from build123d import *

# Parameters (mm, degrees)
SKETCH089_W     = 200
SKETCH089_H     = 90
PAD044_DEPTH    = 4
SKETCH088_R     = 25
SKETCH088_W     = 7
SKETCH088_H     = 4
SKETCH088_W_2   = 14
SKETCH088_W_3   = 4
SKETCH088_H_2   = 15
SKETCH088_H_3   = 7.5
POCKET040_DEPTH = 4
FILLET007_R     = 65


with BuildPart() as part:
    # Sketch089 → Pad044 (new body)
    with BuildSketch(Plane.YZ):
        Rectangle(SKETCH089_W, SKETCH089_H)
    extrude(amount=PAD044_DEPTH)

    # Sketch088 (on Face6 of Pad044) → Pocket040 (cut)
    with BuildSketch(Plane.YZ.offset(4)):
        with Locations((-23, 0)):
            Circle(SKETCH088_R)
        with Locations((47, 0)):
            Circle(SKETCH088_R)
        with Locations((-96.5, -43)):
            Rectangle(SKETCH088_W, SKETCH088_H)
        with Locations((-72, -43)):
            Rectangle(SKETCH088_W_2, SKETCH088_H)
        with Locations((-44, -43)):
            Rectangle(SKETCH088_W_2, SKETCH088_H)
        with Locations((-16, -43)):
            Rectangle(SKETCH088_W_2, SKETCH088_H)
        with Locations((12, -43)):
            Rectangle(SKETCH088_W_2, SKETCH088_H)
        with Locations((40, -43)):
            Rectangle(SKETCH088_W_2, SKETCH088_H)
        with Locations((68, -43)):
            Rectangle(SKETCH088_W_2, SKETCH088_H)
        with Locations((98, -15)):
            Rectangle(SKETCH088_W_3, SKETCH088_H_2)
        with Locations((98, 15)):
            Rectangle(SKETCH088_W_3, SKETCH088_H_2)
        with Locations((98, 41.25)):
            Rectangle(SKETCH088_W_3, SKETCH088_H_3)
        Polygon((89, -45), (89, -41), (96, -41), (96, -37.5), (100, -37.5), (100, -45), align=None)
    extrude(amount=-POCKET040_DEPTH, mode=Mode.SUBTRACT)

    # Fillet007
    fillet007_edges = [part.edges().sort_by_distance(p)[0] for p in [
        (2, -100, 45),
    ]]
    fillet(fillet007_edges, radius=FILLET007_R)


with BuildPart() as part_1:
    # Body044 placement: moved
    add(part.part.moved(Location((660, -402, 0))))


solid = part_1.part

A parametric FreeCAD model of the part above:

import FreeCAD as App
import Part
import Sketcher


def edges_at(feature, points):
    """Names of the edges that pass closest to the given points."""
    edges = feature.Shape.Edges
    near = lambda p: min(range(len(edges)), key=lambda i: edges[i].distToShape(Part.Vertex(*p))[0])
    return sorted({f"Edge{near(p) + 1}" for p in points})

doc = App.newDocument("Part")
params = doc.addObject("Spreadsheet::Sheet", "Params")
for row, (alias, value) in enumerate([
    ("sketch1_width", "200 mm"),
    ("sketch1_height", "90 mm"),
    ("pad1_length", "4 mm"),
    ("sketch2_diameter", "50 mm"),
    ("sketch2_width", "7 mm"),
    ("sketch2_width2", "14 mm"),
    ("sketch2_width3", "4 mm"),
    ("sketch2_height", "15 mm"),
    ("pocket1_length", "4 mm"),
    ("fillet_radius", "65 mm"),
], start=1):
    params.set(f"A{row}", alias)
    params.set(f"B{row}", "=" + value)
    params.setAlias(f"B{row}", alias)

body = doc.addObject("PartDesign::Body", "Body")

sketch1 = doc.addObject("Sketcher::SketchObject", "Sketch")
body.addObject(sketch1)
sketch1.AttachmentSupport = (doc.YZ_Plane, [""])
sketch1.MapMode = "FlatFace"
sketch1.addGeometry(Part.LineSegment(App.Vector(-100, 45, 0), App.Vector(-100, -45, 0)), False)
sketch1.addGeometry(Part.LineSegment(App.Vector(-100, -45, 0), App.Vector(100, -45, 0)), False)
sketch1.addGeometry(Part.LineSegment(App.Vector(100, -45, 0), App.Vector(100, 45, 0)), False)
sketch1.addGeometry(Part.LineSegment(App.Vector(100, 45, 0), App.Vector(-100, 45, 0)), False)
sketch1.addConstraint(Sketcher.Constraint("Coincident", 0, 2, 1, 1))
sketch1.addConstraint(Sketcher.Constraint("Coincident", 1, 2, 2, 1))
sketch1.addConstraint(Sketcher.Constraint("Coincident", 2, 2, 3, 1))
sketch1.addConstraint(Sketcher.Constraint("Coincident", 3, 2, 0, 1))
sketch1.addConstraint(Sketcher.Constraint("Vertical", 0))
sketch1.addConstraint(Sketcher.Constraint("Horizontal", 1))
sketch1.addConstraint(Sketcher.Constraint("Vertical", 2))
sketch1.addConstraint(Sketcher.Constraint("Horizontal", 3))
sketch1.addConstraint(Sketcher.Constraint("Symmetric", 0, 2, 2, 2, -1, 1))
sketch1.addConstraint(Sketcher.Constraint("DistanceX", 1, 1, 1, 2, 200.0))
sketch1.addConstraint(Sketcher.Constraint("DistanceY", 0, 2, 0, 1, 90.0))
sketch1.setExpression("Constraints[9]", "Params.sketch1_width")
sketch1.setExpression("Constraints[10]", "Params.sketch1_height")
pad1 = doc.addObject("PartDesign::Pad", "Pad")
body.addObject(pad1)
pad1.Profile = sketch1
pad1.setExpression("Length", "Params.pad1_length")

sketch2 = doc.addObject("Sketcher::SketchObject", "Sketch001")
body.addObject(sketch2)
sketch2.AttachmentSupport = (doc.YZ_Plane, [""])
sketch2.MapMode = "FlatFace"
sketch2.AttachmentOffset = App.Placement(App.Vector(0, 0, 4), App.Rotation())
sketch2.addGeometry(Part.Circle(App.Vector(-23, 0, 0), App.Vector(0, 0, 1), 25), False)
sketch2.addGeometry(Part.Circle(App.Vector(47, 0, 0), App.Vector(0, 0, 1), 25), False)
sketch2.addGeometry(Part.LineSegment(App.Vector(-100, -41, 0), App.Vector(-100, -45, 0)), False)
sketch2.addGeometry(Part.LineSegment(App.Vector(-100, -45, 0), App.Vector(-93, -45, 0)), False)
sketch2.addGeometry(Part.LineSegment(App.Vector(-93, -45, 0), App.Vector(-93, -41, 0)), False)
sketch2.addGeometry(Part.LineSegment(App.Vector(-93, -41, 0), App.Vector(-100, -41, 0)), False)
sketch2.addGeometry(Part.LineSegment(App.Vector(-79, -41, 0), App.Vector(-79, -45, 0)), False)
sketch2.addGeometry(Part.LineSegment(App.Vector(-79, -45, 0), App.Vector(-65, -45, 0)), False)
sketch2.addGeometry(Part.LineSegment(App.Vector(-65, -45, 0), App.Vector(-65, -41, 0)), False)
sketch2.addGeometry(Part.LineSegment(App.Vector(-65, -41, 0), App.Vector(-79, -41, 0)), False)
sketch2.addGeometry(Part.LineSegment(App.Vector(-51, -41, 0), App.Vector(-51, -45, 0)), False)
sketch2.addGeometry(Part.LineSegment(App.Vector(-51, -45, 0), App.Vector(-37, -45, 0)), False)
sketch2.addGeometry(Part.LineSegment(App.Vector(-37, -45, 0), App.Vector(-37, -41, 0)), False)
sketch2.addGeometry(Part.LineSegment(App.Vector(-37, -41, 0), App.Vector(-51, -41, 0)), False)
sketch2.addGeometry(Part.LineSegment(App.Vector(-23, -41, 0), App.Vector(-23, -45, 0)), False)
sketch2.addGeometry(Part.LineSegment(App.Vector(-23, -45, 0), App.Vector(-9, -45, 0)), False)
sketch2.addGeometry(Part.LineSegment(App.Vector(-9, -45, 0), App.Vector(-9, -41, 0)), False)
sketch2.addGeometry(Part.LineSegment(App.Vector(-9, -41, 0), App.Vector(-23, -41, 0)), False)
sketch2.addGeometry(Part.LineSegment(App.Vector(5, -41, 0), App.Vector(5, -45, 0)), False)
sketch2.addGeometry(Part.LineSegment(App.Vector(5, -45, 0), App.Vector(19, -45, 0)), False)
sketch2.addGeometry(Part.LineSegment(App.Vector(19, -45, 0), App.Vector(19, -41, 0)), False)
sketch2.addGeometry(Part.LineSegment(App.Vector(19, -41, 0), App.Vector(5, -41, 0)), False)
sketch2.addGeometry(Part.LineSegment(App.Vector(33, -41, 0), App.Vector(33, -45, 0)), False)
sketch2.addGeometry(Part.LineSegment(App.Vector(33, -45, 0), App.Vector(47, -45, 0)), False)
sketch2.addGeometry(Part.LineSegment(App.Vector(47, -45, 0), App.Vector(47, -41, 0)), False)
sketch2.addGeometry(Part.LineSegment(App.Vector(47, -41, 0), App.Vector(33, -41, 0)), False)
sketch2.addGeometry(Part.LineSegment(App.Vector(61, -41, 0), App.Vector(61, -45, 0)), False)
sketch2.addGeometry(Part.LineSegment(App.Vector(61, -45, 0), App.Vector(75, -45, 0)), False)
sketch2.addGeometry(Part.LineSegment(App.Vector(75, -45, 0), App.Vector(75, -41, 0)), False)
sketch2.addGeometry(Part.LineSegment(App.Vector(75, -41, 0), App.Vector(61, -41, 0)), False)
sketch2.addGeometry(Part.LineSegment(App.Vector(96, -7.5, 0), App.Vector(96, -22.5, 0)), False)
sketch2.addGeometry(Part.LineSegment(App.Vector(96, -22.5, 0), App.Vector(100, -22.5, 0)), False)
sketch2.addGeometry(Part.LineSegment(App.Vector(100, -22.5, 0), App.Vector(100, -7.5, 0)), False)
sketch2.addGeometry(Part.LineSegment(App.Vector(100, -7.5, 0), App.Vector(96, -7.5, 0)), False)
sketch2.addGeometry(Part.LineSegment(App.Vector(96, 22.5, 0), App.Vector(96, 7.5, 0)), False)
sketch2.addGeometry(Part.LineSegment(App.Vector(96, 7.5, 0), App.Vector(100, 7.5, 0)), False)
sketch2.addGeometry(Part.LineSegment(App.Vector(100, 7.5, 0), App.Vector(100, 22.5, 0)), False)
sketch2.addGeometry(Part.LineSegment(App.Vector(100, 22.5, 0), App.Vector(96, 22.5, 0)), False)
sketch2.addGeometry(Part.LineSegment(App.Vector(96, 45, 0), App.Vector(96, 37.5, 0)), False)
sketch2.addGeometry(Part.LineSegment(App.Vector(96, 37.5, 0), App.Vector(100, 37.5, 0)), False)
sketch2.addGeometry(Part.LineSegment(App.Vector(100, 37.5, 0), App.Vector(100, 45, 0)), False)
sketch2.addGeometry(Part.LineSegment(App.Vector(100, 45, 0), App.Vector(96, 45, 0)), False)
sketch2.addGeometry(Part.LineSegment(App.Vector(89, -41, 0), App.Vector(89, -45, 0)), False)
sketch2.addGeometry(Part.LineSegment(App.Vector(89, -45, 0), App.Vector(100, -45, 0)), False)
sketch2.addGeometry(Part.LineSegment(App.Vector(100, -45, 0), App.Vector(100, -37.5, 0)), False)
sketch2.addGeometry(Part.LineSegment(App.Vector(100, -37.5, 0), App.Vector(96, -37.5, 0)), False)
sketch2.addGeometry(Part.LineSegment(App.Vector(96, -37.5, 0), App.Vector(96, -41, 0)), False)
sketch2.addGeometry(Part.LineSegment(App.Vector(96, -41, 0), App.Vector(89, -41, 0)), False)
sketch2.addConstraint(Sketcher.Constraint("Coincident", 2, 2, 3, 1))
sketch2.addConstraint(Sketcher.Constraint("Coincident", 3, 2, 4, 1))
sketch2.addConstraint(Sketcher.Constraint("Coincident", 4, 2, 5, 1))
sketch2.addConstraint(Sketcher.Constraint("Coincident", 5, 2, 2, 1))
sketch2.addConstraint(Sketcher.Constraint("Coincident", 6, 2, 7, 1))
sketch2.addConstraint(Sketcher.Constraint("Coincident", 7, 2, 8, 1))
sketch2.addConstraint(Sketcher.Constraint("Coincident", 8, 2, 9, 1))
sketch2.addConstraint(Sketcher.Constraint("Coincident", 9, 2, 6, 1))
sketch2.addConstraint(Sketcher.Constraint("Coincident", 10, 2, 11, 1))
sketch2.addConstraint(Sketcher.Constraint("Coincident", 11, 2, 12, 1))
sketch2.addConstraint(Sketcher.Constraint("Coincident", 12, 2, 13, 1))
sketch2.addConstraint(Sketcher.Constraint("Coincident", 13, 2, 10, 1))
sketch2.addConstraint(Sketcher.Constraint("Coincident", 14, 2, 15, 1))
sketch2.addConstraint(Sketcher.Constraint("Coincident", 15, 2, 16, 1))
sketch2.addConstraint(Sketcher.Constraint("Coincident", 16, 2, 17, 1))
sketch2.addConstraint(Sketcher.Constraint("Coincident", 17, 2, 14, 1))
sketch2.addConstraint(Sketcher.Constraint("Coincident", 18, 2, 19, 1))
sketch2.addConstraint(Sketcher.Constraint("Coincident", 19, 2, 20, 1))
sketch2.addConstraint(Sketcher.Constraint("Coincident", 20, 2, 21, 1))
sketch2.addConstraint(Sketcher.Constraint("Coincident", 21, 2, 18, 1))
sketch2.addConstraint(Sketcher.Constraint("Coincident", 22, 2, 23, 1))
sketch2.addConstraint(Sketcher.Constraint("Coincident", 23, 2, 24, 1))
sketch2.addConstraint(Sketcher.Constraint("Coincident", 24, 2, 25, 1))
sketch2.addConstraint(Sketcher.Constraint("Coincident", 25, 2, 22, 1))
sketch2.addConstraint(Sketcher.Constraint("Coincident", 26, 2, 27, 1))
sketch2.addConstraint(Sketcher.Constraint("Coincident", 27, 2, 28, 1))
sketch2.addConstraint(Sketcher.Constraint("Coincident", 28, 2, 29, 1))
sketch2.addConstraint(Sketcher.Constraint("Coincident", 29, 2, 26, 1))
sketch2.addConstraint(Sketcher.Constraint("Coincident", 30, 2, 31, 1))
sketch2.addConstraint(Sketcher.Constraint("Coincident", 31, 2, 32, 1))
sketch2.addConstraint(Sketcher.Constraint("Coincident", 32, 2, 33, 1))
sketch2.addConstraint(Sketcher.Constraint("Coincident", 33, 2, 30, 1))
sketch2.addConstraint(Sketcher.Constraint("Coincident", 34, 2, 35, 1))
sketch2.addConstraint(Sketcher.Constraint("Coincident", 35, 2, 36, 1))
sketch2.addConstraint(Sketcher.Constraint("Coincident", 36, 2, 37, 1))
sketch2.addConstraint(Sketcher.Constraint("Coincident", 37, 2, 34, 1))
sketch2.addConstraint(Sketcher.Constraint("Coincident", 38, 2, 39, 1))
sketch2.addConstraint(Sketcher.Constraint("Coincident", 39, 2, 40, 1))
sketch2.addConstraint(Sketcher.Constraint("Coincident", 40, 2, 41, 1))
sketch2.addConstraint(Sketcher.Constraint("Coincident", 41, 2, 38, 1))
sketch2.addConstraint(Sketcher.Constraint("Coincident", 42, 2, 43, 1))
sketch2.addConstraint(Sketcher.Constraint("Coincident", 43, 2, 44, 1))
sketch2.addConstraint(Sketcher.Constraint("Coincident", 44, 2, 45, 1))
sketch2.addConstraint(Sketcher.Constraint("Coincident", 45, 2, 46, 1))
sketch2.addConstraint(Sketcher.Constraint("Coincident", 46, 2, 47, 1))
sketch2.addConstraint(Sketcher.Constraint("Coincident", 47, 2, 42, 1))
sketch2.addConstraint(Sketcher.Constraint("Vertical", 2))
sketch2.addConstraint(Sketcher.Constraint("Horizontal", 3))
sketch2.addConstraint(Sketcher.Constraint("Vertical", 4))
sketch2.addConstraint(Sketcher.Constraint("Horizontal", 5))
sketch2.addConstraint(Sketcher.Constraint("Vertical", 6))
sketch2.addConstraint(Sketcher.Constraint("Horizontal", 7))
sketch2.addConstraint(Sketcher.Constraint("Vertical", 8))
sketch2.addConstraint(Sketcher.Constraint("Horizontal", 9))
sketch2.addConstraint(Sketcher.Constraint("Vertical", 10))
sketch2.addConstraint(Sketcher.Constraint("Horizontal", 11))
sketch2.addConstraint(Sketcher.Constraint("Vertical", 12))
sketch2.addConstraint(Sketcher.Constraint("Horizontal", 13))
sketch2.addConstraint(Sketcher.Constraint("Vertical", 14))
sketch2.addConstraint(Sketcher.Constraint("Horizontal", 15))
sketch2.addConstraint(Sketcher.Constraint("Vertical", 16))
sketch2.addConstraint(Sketcher.Constraint("Horizontal", 17))
sketch2.addConstraint(Sketcher.Constraint("Vertical", 18))
sketch2.addConstraint(Sketcher.Constraint("Horizontal", 19))
sketch2.addConstraint(Sketcher.Constraint("Vertical", 20))
sketch2.addConstraint(Sketcher.Constraint("Horizontal", 21))
sketch2.addConstraint(Sketcher.Constraint("Vertical", 22))
sketch2.addConstraint(Sketcher.Constraint("Horizontal", 23))
sketch2.addConstraint(Sketcher.Constraint("Vertical", 24))
sketch2.addConstraint(Sketcher.Constraint("Horizontal", 25))
sketch2.addConstraint(Sketcher.Constraint("Vertical", 26))
sketch2.addConstraint(Sketcher.Constraint("Horizontal", 27))
sketch2.addConstraint(Sketcher.Constraint("Vertical", 28))
sketch2.addConstraint(Sketcher.Constraint("Horizontal", 29))
sketch2.addConstraint(Sketcher.Constraint("Vertical", 30))
sketch2.addConstraint(Sketcher.Constraint("Horizontal", 31))
sketch2.addConstraint(Sketcher.Constraint("Vertical", 32))
sketch2.addConstraint(Sketcher.Constraint("Horizontal", 33))
sketch2.addConstraint(Sketcher.Constraint("Vertical", 34))
sketch2.addConstraint(Sketcher.Constraint("Horizontal", 35))
sketch2.addConstraint(Sketcher.Constraint("Vertical", 36))
sketch2.addConstraint(Sketcher.Constraint("Horizontal", 37))
sketch2.addConstraint(Sketcher.Constraint("Vertical", 38))
sketch2.addConstraint(Sketcher.Constraint("Horizontal", 39))
sketch2.addConstraint(Sketcher.Constraint("Vertical", 40))
sketch2.addConstraint(Sketcher.Constraint("Horizontal", 41))
sketch2.addConstraint(Sketcher.Constraint("Vertical", 42))
sketch2.addConstraint(Sketcher.Constraint("Horizontal", 43))
sketch2.addConstraint(Sketcher.Constraint("Vertical", 44))
sketch2.addConstraint(Sketcher.Constraint("Horizontal", 45))
sketch2.addConstraint(Sketcher.Constraint("Vertical", 46))
sketch2.addConstraint(Sketcher.Constraint("Horizontal", 47))
sketch2.addConstraint(Sketcher.Constraint("Equal", 0, 1))
sketch2.addConstraint(Sketcher.Constraint("Symmetric", 2, 2, 40, 2, -1, 1))
sketch2.addConstraint(Sketcher.Constraint("Symmetric", 2, 2, 43, 2, -2))
sketch2.addConstraint(Sketcher.Constraint("Symmetric", 33, 2, 34, 2, -1))
sketch2.addConstraint(Sketcher.Constraint("Symmetric", 31, 2, 36, 2, -1))
sketch2.addConstraint(Sketcher.Constraint("Symmetric", 38, 2, 45, 2, -1))
sketch2.addConstraint(Sketcher.Constraint("PointOnObject", 0, 3, -1))
sketch2.addConstraint(Sketcher.Constraint("PointOnObject", 1, 3, -1))
sketch2.addConstraint(Sketcher.Constraint("Horizontal", 3, 2, 6, 2))
sketch2.addConstraint(Sketcher.Constraint("Horizontal", 5, 2, 8, 2))
sketch2.addConstraint(Sketcher.Constraint("Horizontal", 7, 2, 10, 2))
sketch2.addConstraint(Sketcher.Constraint("Horizontal", 9, 2, 12, 2))
sketch2.addConstraint(Sketcher.Constraint("Horizontal", 11, 2, 14, 2))
sketch2.addConstraint(Sketcher.Constraint("Horizontal", 13, 2, 16, 2))
sketch2.addConstraint(Sketcher.Constraint("Horizontal", 15, 2, 18, 2))
sketch2.addConstraint(Sketcher.Constraint("Horizontal", 17, 2, 20, 2))
sketch2.addConstraint(Sketcher.Constraint("Horizontal", 19, 2, 22, 2))
sketch2.addConstraint(Sketcher.Constraint("Horizontal", 21, 2, 24, 2))
sketch2.addConstraint(Sketcher.Constraint("Horizontal", 23, 2, 26, 2))
sketch2.addConstraint(Sketcher.Constraint("Horizontal", 25, 2, 28, 2))
sketch2.addConstraint(Sketcher.Constraint("Horizontal", 29, 2, 46, 2))
sketch2.addConstraint(Sketcher.Constraint("Vertical", 0, 3, 14, 2))
sketch2.addConstraint(Sketcher.Constraint("Vertical", 1, 3, 23, 2))
sketch2.addConstraint(Sketcher.Constraint("Vertical", 37, 2, 38, 2))
sketch2.addConstraint(Sketcher.Constraint("Vertical", 36, 2, 39, 2))
sketch2.addConstraint(Sketcher.Constraint("Equal", 9, 11))
sketch2.addConstraint(Sketcher.Constraint("Equal", 13, 15))
sketch2.addConstraint(Sketcher.Constraint("Equal", 17, 19))
sketch2.addConstraint(Sketcher.Constraint("Equal", 21, 23))
sketch2.addConstraint(Sketcher.Constraint("Equal", 25, 27))
sketch2.addConstraint(Sketcher.Constraint("Equal", 5, 47))
sketch2.addConstraint(Sketcher.Constraint("Equal", 45, 2))
sketch2.addConstraint(Sketcher.Constraint("Diameter", 0, 50.0))
sketch2.addConstraint(Sketcher.Constraint("DistanceX", 3, 1, 3, 2, 7.0))
sketch2.addConstraint(Sketcher.Constraint("DistanceX", 7, 1, 7, 2, 14.0))
sketch2.addConstraint(Sketcher.Constraint("DistanceX", 31, 1, 31, 2, 4.0))
sketch2.addConstraint(Sketcher.Constraint("DistanceY", 30, 2, 30, 1, 15.0))
sketch2.addConstraint(Sketcher.Constraint("DistanceY", 38, 2, 38, 1, 7.5))
sketch2.addConstraint(Sketcher.Constraint("DistanceX", 0, 3, -1, 1, 23.0))
sketch2.addConstraint(Sketcher.Constraint("DistanceX", -1, 1, 1, 3, 47.0))
sketch2.addConstraint(Sketcher.Constraint("DistanceX", 2, 2, -1, 1, 100.0))
sketch2.addConstraint(Sketcher.Constraint("DistanceY", 2, 2, -1, 1, 45.0))
sketch2.addConstraint(Sketcher.Constraint("DistanceX", 6, 2, -1, 1, 79.0))
sketch2.addConstraint(Sketcher.Constraint("DistanceX", 10, 2, -1, 1, 51.0))
sketch2.addConstraint(Sketcher.Constraint("DistanceX", -1, 1, 18, 2, 5.0))
sketch2.addConstraint(Sketcher.Constraint("DistanceX", -1, 1, 26, 2, 61.0))
sketch2.addConstraint(Sketcher.Constraint("DistanceY", 33, 2, 34, 2, 15.0))
sketch2.setExpression("Constraints[124]", "Params.sketch2_diameter")
sketch2.setExpression("Constraints[125]", "Params.sketch2_width")
sketch2.setExpression("Constraints[126]", "Params.sketch2_width2")
sketch2.setExpression("Constraints[127]", "Params.sketch2_width3")
sketch2.setExpression("Constraints[128]", "Params.sketch2_height")
pocket1 = doc.addObject("PartDesign::Pocket", "Pocket")
body.addObject(pocket1)
pocket1.Profile = sketch2
pocket1.setExpression("Length", "Params.pocket1_length")
doc.recompute()

fillet = doc.addObject("PartDesign::Fillet", "Fillet")
body.addObject(fillet)
fillet.Base = (pocket1, edges_at(pocket1, [(2, -100, 45)]))
fillet.setExpression("Radius", "Params.fillet_radius")
body2 = doc.addObject("PartDesign::Body", "Body001")
doc.recompute()

body.Placement = App.Placement(App.Vector(660, -402, 0), App.Rotation(App.Vector(0, 0, 1), 0))
boolean = doc.addObject("PartDesign::Boolean", "Boolean")
body2.addObject(boolean)
boolean.Type = "Fuse"
boolean.addObjects([body])

doc.recompute()
